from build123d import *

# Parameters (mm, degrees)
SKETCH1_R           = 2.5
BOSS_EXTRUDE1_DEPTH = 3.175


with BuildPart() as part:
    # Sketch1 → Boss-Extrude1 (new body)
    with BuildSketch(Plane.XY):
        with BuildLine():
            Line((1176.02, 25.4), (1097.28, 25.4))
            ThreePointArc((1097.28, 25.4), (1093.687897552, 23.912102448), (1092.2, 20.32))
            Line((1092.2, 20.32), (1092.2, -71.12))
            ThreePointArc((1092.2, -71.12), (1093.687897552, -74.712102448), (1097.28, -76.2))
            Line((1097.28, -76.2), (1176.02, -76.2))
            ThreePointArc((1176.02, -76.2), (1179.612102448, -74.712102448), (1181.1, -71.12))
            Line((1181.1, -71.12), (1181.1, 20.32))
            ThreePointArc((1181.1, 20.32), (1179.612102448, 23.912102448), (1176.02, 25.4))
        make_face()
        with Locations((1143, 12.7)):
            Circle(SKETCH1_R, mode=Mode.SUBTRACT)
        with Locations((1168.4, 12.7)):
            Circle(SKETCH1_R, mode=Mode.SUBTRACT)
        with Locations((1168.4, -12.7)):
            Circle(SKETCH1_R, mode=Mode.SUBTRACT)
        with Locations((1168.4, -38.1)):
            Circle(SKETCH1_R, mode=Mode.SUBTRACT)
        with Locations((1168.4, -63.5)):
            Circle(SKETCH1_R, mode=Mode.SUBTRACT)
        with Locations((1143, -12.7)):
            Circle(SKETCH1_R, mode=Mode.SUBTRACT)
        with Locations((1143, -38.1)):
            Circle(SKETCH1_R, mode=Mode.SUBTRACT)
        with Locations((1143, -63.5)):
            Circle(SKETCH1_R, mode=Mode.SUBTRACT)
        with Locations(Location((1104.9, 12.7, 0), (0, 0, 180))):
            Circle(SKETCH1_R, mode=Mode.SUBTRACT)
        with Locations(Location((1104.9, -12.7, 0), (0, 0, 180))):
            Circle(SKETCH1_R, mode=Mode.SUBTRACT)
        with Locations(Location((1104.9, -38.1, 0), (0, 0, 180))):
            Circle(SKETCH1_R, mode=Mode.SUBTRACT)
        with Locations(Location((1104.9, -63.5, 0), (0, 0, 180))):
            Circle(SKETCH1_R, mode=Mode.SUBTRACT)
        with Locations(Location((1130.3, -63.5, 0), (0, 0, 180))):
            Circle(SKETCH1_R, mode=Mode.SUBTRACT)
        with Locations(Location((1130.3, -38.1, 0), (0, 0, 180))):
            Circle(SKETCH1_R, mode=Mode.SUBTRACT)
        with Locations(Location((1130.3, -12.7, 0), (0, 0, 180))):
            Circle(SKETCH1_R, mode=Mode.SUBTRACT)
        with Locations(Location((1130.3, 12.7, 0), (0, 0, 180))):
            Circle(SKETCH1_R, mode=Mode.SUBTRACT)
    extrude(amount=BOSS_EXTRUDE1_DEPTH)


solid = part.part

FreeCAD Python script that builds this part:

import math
import FreeCAD as App
import Part
import Sketcher
from FreeCAD import Vector
Q = App.Units.Quantity

doc = App.newDocument("Part")
body = doc.addObject("PartDesign::Body", "Body")

sketch1 = doc.addObject("Sketcher::SketchObject", "Sketch")
body.addObject(sketch1)
sketch1.AttachmentSupport = (doc.XY_Plane, [""])
sketch1.MapMode = "FlatFace"
sketch1.addGeometry(Part.LineSegment(Vector(1176, 25.4, 0), Vector(1097.3, 25.4, 0)), False)
sketch1.addGeometry(Part.ArcOfCircle(Part.Circle(Vector(1097.3, 20.3, 0), Vector(0, 0, 1), 5.1), math.radians(90), math.radians(180)), False)
sketch1.addGeometry(Part.LineSegment(Vector(1092.2, 20.3, 0), Vector(1092.2, -71.1, 0)), False)
sketch1.addGeometry(Part.ArcOfCircle(Part.Circle(Vector(1097.3, -71.1, 0), Vector(0, 0, 1), 5.1), math.radians(-180), math.radians(-90)), False)
sketch1.addGeometry(Part.LineSegment(Vector(1097.3, -76.2, 0), Vector(1176, -76.2, 0)), False)
sketch1.addGeometry(Part.ArcOfCircle(Part.Circle(Vector(1176, -71.1, 0), Vector(0, 0, 1), 5.1), math.radians(-90), math.radians(0)), False)
sketch1.addGeometry(Part.LineSegment(Vector(1181.1, -71.1, 0), Vector(1181.1, 20.3, 0)), False)
sketch1.addGeometry(Part.ArcOfCircle(Part.Circle(Vector(1176, 20.3, 0), Vector(0, 0, 1), 5.1), math.radians(0), math.radians(90)), False)
sketch1.addGeometry(Part.Circle(Vector(1104.9, -63.5, 0), Vector(0, 0, 1), 2.5), False)
sketch1.addGeometry(Part.Circle(Vector(1130.3, -63.5, 0), Vector(0, 0, 1), 2.5), False)
sketch1.addGeometry(Part.Circle(Vector(1104.9, -38.1, 0), Vector(0, 0, 1), 2.5), False)
sketch1.addGeometry(Part.Circle(Vector(1130.3, -38.1, 0), Vector(0, 0, 1), 2.5), False)
sketch1.addGeometry(Part.Circle(Vector(1143, -63.5, 0), Vector(0, 0, 1), 2.5), False)
sketch1.addGeometry(Part.Circle(Vector(1168.4, -63.5, 0), Vector(0, 0, 1), 2.5), False)
sketch1.addGeometry(Part.Circle(Vector(1143, -38.1, 0), Vector(0, 0, 1), 2.5), False)
sketch1.addGeometry(Part.Circle(Vector(1168.4, -38.1, 0), Vector(0, 0, 1), 2.5), False)
sketch1.addGeometry(Part.Circle(Vector(1104.9, -12.7, 0), Vector(0, 0, 1), 2.5), False)
sketch1.addGeometry(Part.Circle(Vector(1130.3, -12.7, 0), Vector(0, 0, 1), 2.5), False)
sketch1.addGeometry(Part.Circle(Vector(1104.9, 12.7, 0), Vector(0, 0, 1), 2.5), False)
sketch1.addGeometry(Part.Circle(Vector(1130.3, 12.7, 0), Vector(0, 0, 1), 2.5), False)
sketch1.addGeometry(Part.Circle(Vector(1143, -12.7, 0), Vector(0, 0, 1), 2.5), False)
sketch1.addGeometry(Part.Circle(Vector(1168.4, -12.7, 0), Vector(0, 0, 1), 2.5), False)
sketch1.addGeometry(Part.Circle(Vector(1143, 12.7, 0), Vector(0, 0, 1), 2.5), False)
sketch1.addGeometry(Part.Circle(Vector(1168.4, 12.7, 0), Vector(0, 0, 1), 2.5), False)
sketch1.addConstraint(Sketcher.Constraint("Tangent", 0, 2, 1, 1))
sketch1.addConstraint(Sketcher.Constraint("Tangent", 1, 2, 2, 1))
sketch1.addConstraint(Sketcher.Constraint("Tangent", 2, 2, 3, 1))
sketch1.addConstraint(Sketcher.Constraint("Tangent", 3, 2, 4, 1))
sketch1.addConstraint(Sketcher.Constraint("Tangent", 4, 2, 5, 1))
sketch1.addConstraint(Sketcher.Constraint("Tangent", 5, 2, 6, 1))
sketch1.addConstraint(Sketcher.Constraint("Tangent", 6, 2, 7, 1))
sketch1.addConstraint(Sketcher.Constraint("Tangent", 7, 2, 0, 1))
sketch1.addConstraint(Sketcher.Constraint("Horizontal", 0))
sketch1.addConstraint(Sketcher.Constraint("Vertical", 2))
sketch1.addConstraint(Sketcher.Constraint("Horizontal", 4))
sketch1.addConstraint(Sketcher.Constraint("Vertical", 6))
sketch1.addConstraint(Sketcher.Constraint("Equal", 1, 3))
sketch1.addConstraint(Sketcher.Constraint("Equal", 3, 5))
sketch1.addConstraint(Sketcher.Constraint("Equal", 5, 7))
sketch1.addConstraint(Sketcher.Constraint("Equal", 8, 9))
sketch1.addConstraint(Sketcher.Constraint("Equal", 9, 10))
sketch1.addConstraint(Sketcher.Constraint("Equal", 10, 11))
sketch1.addConstraint(Sketcher.Constraint("Equal", 11, 12))
sketch1.addConstraint(Sketcher.Constraint("Equal", 12, 13))
sketch1.addConstraint(Sketcher.Constraint("Equal", 13, 14))
sketch1.addConstraint(Sketcher.Constraint("Equal", 14, 15))
sketch1.addConstraint(Sketcher.Constraint("Equal", 15, 16))
sketch1.addConstraint(Sketcher.Constraint("Equal", 16, 17))
sketch1.addConstraint(Sketcher.Constraint("Equal", 17, 18))
sketch1.addConstraint(Sketcher.Constraint("Equal", 18, 19))
sketch1.addConstraint(Sketcher.Constraint("Equal", 19, 20))
sketch1.addConstraint(Sketcher.Constraint("Equal", 20, 21))
sketch1.addConstraint(Sketcher.Constraint("Equal", 21, 22))
sketch1.addConstraint(Sketcher.Constraint("Equal", 22, 23))
sketch1.addConstraint(Sketcher.Constraint("Symmetric", 16, 3, 18, 3, -1))
sketch1.addConstraint(Sketcher.Constraint("Symmetric", 17, 3, 19, 3, -1))
sketch1.addConstraint(Sketcher.Constraint("Symmetric", 20, 3, 22, 3, -1))
sketch1.addConstraint(Sketcher.Constraint("Symmetric", 21, 3, 23, 3, -1))
sketch1.addConstraint(Sketcher.Constraint("Horizontal", 8, 3, 9, 3))
sketch1.addConstraint(Sketcher.Constraint("Horizontal", 10, 3, 11, 3))
sketch1.addConstraint(Sketcher.Constraint("Horizontal", 9, 3, 12, 3))
sketch1.addConstraint(Sketcher.Constraint("Horizontal", 12, 3, 13, 3))
sketch1.addConstraint(Sketcher.Constraint("Horizontal", 11, 3, 14, 3))
sketch1.addConstraint(Sketcher.Constraint("Horizontal", 14, 3, 15, 3))
sketch1.addConstraint(Sketcher.Constraint("Horizontal", 16, 3, 17, 3))
sketch1.addConstraint(Sketcher.Constraint("Horizontal", 17, 3, 20, 3))
sketch1.addConstraint(Sketcher.Constraint("Horizontal", 20, 3, 21, 3))
sketch1.addConstraint(Sketcher.Constraint("Vertical", 8, 3, 10, 3))
sketch1.addConstraint(Sketcher.Constraint("Vertical", 9, 3, 11, 3))
sketch1.addConstraint(Sketcher.Constraint("Vertical", 12, 3, 14, 3))
sketch1.addConstraint(Sketcher.Constraint("Vertical", 13, 3, 15, 3))
sketch1.addConstraint(Sketcher.Constraint("Vertical", 10, 3, 16, 3))
sketch1.addConstraint(Sketcher.Constraint("Vertical", 11, 3, 17, 3))
sketch1.addConstraint(Sketcher.Constraint("Vertical", 14, 3, 20, 3))
sketch1.addConstraint(Sketcher.Constraint("Vertical", 15, 3, 21, 3))
sketch1.addConstraint(Sketcher.Constraint("Radius", 1, Q("0.2 in")))
sketch1.addConstraint(Sketcher.Constraint("DistanceX", 0, 2, 0, 1, Q("3.1 in")))
sketch1.addConstraint(Sketcher.Constraint("DistanceY", 2, 2, 2, 1, Q("3.6 in")))
sketch1.addConstraint(Sketcher.Constraint("DistanceX", -1, 1, 12, 3, Q("45 in")))
sketch1.addConstraint(Sketcher.Constraint("DistanceX", -1, 1, 13, 3, Q("46 in")))
sketch1.addConstraint(Sketcher.Constraint("DistanceY", -1, 1, 0, 2, Q("1 in")))
sketch1.addConstraint(Sketcher.Constraint("DistanceX", -1, 1, 1, 2, Q("43 in")))
sketch1.addConstraint(Sketcher.Constraint("DistanceX", 8, 3, 9, 3, Q("1 in")))
sketch1.addConstraint(Sketcher.Constraint("DistanceY", 8, 3, 10, 3, Q("1 in")))
sketch1.addConstraint(Sketcher.Constraint("DistanceY", 10, 3, 16, 3, Q("1 in")))
sketch1.addConstraint(Sketcher.Constraint("DistanceY", 16, 3, 18, 3, Q("1 in")))
sketch1.addConstraint(Sketcher.Constraint("DistanceX", -1, 1, 8, 3, Q("43.5 in")))
sketch1.addConstraint(Sketcher.Constraint("Diameter", 8, 5.0))
pad1 = doc.addObject("PartDesign::Pad", "Pad")
body.addObject(pad1)
pad1.Profile = sketch1
pad1.Length = Q("0.125 in")

doc.recompute()
